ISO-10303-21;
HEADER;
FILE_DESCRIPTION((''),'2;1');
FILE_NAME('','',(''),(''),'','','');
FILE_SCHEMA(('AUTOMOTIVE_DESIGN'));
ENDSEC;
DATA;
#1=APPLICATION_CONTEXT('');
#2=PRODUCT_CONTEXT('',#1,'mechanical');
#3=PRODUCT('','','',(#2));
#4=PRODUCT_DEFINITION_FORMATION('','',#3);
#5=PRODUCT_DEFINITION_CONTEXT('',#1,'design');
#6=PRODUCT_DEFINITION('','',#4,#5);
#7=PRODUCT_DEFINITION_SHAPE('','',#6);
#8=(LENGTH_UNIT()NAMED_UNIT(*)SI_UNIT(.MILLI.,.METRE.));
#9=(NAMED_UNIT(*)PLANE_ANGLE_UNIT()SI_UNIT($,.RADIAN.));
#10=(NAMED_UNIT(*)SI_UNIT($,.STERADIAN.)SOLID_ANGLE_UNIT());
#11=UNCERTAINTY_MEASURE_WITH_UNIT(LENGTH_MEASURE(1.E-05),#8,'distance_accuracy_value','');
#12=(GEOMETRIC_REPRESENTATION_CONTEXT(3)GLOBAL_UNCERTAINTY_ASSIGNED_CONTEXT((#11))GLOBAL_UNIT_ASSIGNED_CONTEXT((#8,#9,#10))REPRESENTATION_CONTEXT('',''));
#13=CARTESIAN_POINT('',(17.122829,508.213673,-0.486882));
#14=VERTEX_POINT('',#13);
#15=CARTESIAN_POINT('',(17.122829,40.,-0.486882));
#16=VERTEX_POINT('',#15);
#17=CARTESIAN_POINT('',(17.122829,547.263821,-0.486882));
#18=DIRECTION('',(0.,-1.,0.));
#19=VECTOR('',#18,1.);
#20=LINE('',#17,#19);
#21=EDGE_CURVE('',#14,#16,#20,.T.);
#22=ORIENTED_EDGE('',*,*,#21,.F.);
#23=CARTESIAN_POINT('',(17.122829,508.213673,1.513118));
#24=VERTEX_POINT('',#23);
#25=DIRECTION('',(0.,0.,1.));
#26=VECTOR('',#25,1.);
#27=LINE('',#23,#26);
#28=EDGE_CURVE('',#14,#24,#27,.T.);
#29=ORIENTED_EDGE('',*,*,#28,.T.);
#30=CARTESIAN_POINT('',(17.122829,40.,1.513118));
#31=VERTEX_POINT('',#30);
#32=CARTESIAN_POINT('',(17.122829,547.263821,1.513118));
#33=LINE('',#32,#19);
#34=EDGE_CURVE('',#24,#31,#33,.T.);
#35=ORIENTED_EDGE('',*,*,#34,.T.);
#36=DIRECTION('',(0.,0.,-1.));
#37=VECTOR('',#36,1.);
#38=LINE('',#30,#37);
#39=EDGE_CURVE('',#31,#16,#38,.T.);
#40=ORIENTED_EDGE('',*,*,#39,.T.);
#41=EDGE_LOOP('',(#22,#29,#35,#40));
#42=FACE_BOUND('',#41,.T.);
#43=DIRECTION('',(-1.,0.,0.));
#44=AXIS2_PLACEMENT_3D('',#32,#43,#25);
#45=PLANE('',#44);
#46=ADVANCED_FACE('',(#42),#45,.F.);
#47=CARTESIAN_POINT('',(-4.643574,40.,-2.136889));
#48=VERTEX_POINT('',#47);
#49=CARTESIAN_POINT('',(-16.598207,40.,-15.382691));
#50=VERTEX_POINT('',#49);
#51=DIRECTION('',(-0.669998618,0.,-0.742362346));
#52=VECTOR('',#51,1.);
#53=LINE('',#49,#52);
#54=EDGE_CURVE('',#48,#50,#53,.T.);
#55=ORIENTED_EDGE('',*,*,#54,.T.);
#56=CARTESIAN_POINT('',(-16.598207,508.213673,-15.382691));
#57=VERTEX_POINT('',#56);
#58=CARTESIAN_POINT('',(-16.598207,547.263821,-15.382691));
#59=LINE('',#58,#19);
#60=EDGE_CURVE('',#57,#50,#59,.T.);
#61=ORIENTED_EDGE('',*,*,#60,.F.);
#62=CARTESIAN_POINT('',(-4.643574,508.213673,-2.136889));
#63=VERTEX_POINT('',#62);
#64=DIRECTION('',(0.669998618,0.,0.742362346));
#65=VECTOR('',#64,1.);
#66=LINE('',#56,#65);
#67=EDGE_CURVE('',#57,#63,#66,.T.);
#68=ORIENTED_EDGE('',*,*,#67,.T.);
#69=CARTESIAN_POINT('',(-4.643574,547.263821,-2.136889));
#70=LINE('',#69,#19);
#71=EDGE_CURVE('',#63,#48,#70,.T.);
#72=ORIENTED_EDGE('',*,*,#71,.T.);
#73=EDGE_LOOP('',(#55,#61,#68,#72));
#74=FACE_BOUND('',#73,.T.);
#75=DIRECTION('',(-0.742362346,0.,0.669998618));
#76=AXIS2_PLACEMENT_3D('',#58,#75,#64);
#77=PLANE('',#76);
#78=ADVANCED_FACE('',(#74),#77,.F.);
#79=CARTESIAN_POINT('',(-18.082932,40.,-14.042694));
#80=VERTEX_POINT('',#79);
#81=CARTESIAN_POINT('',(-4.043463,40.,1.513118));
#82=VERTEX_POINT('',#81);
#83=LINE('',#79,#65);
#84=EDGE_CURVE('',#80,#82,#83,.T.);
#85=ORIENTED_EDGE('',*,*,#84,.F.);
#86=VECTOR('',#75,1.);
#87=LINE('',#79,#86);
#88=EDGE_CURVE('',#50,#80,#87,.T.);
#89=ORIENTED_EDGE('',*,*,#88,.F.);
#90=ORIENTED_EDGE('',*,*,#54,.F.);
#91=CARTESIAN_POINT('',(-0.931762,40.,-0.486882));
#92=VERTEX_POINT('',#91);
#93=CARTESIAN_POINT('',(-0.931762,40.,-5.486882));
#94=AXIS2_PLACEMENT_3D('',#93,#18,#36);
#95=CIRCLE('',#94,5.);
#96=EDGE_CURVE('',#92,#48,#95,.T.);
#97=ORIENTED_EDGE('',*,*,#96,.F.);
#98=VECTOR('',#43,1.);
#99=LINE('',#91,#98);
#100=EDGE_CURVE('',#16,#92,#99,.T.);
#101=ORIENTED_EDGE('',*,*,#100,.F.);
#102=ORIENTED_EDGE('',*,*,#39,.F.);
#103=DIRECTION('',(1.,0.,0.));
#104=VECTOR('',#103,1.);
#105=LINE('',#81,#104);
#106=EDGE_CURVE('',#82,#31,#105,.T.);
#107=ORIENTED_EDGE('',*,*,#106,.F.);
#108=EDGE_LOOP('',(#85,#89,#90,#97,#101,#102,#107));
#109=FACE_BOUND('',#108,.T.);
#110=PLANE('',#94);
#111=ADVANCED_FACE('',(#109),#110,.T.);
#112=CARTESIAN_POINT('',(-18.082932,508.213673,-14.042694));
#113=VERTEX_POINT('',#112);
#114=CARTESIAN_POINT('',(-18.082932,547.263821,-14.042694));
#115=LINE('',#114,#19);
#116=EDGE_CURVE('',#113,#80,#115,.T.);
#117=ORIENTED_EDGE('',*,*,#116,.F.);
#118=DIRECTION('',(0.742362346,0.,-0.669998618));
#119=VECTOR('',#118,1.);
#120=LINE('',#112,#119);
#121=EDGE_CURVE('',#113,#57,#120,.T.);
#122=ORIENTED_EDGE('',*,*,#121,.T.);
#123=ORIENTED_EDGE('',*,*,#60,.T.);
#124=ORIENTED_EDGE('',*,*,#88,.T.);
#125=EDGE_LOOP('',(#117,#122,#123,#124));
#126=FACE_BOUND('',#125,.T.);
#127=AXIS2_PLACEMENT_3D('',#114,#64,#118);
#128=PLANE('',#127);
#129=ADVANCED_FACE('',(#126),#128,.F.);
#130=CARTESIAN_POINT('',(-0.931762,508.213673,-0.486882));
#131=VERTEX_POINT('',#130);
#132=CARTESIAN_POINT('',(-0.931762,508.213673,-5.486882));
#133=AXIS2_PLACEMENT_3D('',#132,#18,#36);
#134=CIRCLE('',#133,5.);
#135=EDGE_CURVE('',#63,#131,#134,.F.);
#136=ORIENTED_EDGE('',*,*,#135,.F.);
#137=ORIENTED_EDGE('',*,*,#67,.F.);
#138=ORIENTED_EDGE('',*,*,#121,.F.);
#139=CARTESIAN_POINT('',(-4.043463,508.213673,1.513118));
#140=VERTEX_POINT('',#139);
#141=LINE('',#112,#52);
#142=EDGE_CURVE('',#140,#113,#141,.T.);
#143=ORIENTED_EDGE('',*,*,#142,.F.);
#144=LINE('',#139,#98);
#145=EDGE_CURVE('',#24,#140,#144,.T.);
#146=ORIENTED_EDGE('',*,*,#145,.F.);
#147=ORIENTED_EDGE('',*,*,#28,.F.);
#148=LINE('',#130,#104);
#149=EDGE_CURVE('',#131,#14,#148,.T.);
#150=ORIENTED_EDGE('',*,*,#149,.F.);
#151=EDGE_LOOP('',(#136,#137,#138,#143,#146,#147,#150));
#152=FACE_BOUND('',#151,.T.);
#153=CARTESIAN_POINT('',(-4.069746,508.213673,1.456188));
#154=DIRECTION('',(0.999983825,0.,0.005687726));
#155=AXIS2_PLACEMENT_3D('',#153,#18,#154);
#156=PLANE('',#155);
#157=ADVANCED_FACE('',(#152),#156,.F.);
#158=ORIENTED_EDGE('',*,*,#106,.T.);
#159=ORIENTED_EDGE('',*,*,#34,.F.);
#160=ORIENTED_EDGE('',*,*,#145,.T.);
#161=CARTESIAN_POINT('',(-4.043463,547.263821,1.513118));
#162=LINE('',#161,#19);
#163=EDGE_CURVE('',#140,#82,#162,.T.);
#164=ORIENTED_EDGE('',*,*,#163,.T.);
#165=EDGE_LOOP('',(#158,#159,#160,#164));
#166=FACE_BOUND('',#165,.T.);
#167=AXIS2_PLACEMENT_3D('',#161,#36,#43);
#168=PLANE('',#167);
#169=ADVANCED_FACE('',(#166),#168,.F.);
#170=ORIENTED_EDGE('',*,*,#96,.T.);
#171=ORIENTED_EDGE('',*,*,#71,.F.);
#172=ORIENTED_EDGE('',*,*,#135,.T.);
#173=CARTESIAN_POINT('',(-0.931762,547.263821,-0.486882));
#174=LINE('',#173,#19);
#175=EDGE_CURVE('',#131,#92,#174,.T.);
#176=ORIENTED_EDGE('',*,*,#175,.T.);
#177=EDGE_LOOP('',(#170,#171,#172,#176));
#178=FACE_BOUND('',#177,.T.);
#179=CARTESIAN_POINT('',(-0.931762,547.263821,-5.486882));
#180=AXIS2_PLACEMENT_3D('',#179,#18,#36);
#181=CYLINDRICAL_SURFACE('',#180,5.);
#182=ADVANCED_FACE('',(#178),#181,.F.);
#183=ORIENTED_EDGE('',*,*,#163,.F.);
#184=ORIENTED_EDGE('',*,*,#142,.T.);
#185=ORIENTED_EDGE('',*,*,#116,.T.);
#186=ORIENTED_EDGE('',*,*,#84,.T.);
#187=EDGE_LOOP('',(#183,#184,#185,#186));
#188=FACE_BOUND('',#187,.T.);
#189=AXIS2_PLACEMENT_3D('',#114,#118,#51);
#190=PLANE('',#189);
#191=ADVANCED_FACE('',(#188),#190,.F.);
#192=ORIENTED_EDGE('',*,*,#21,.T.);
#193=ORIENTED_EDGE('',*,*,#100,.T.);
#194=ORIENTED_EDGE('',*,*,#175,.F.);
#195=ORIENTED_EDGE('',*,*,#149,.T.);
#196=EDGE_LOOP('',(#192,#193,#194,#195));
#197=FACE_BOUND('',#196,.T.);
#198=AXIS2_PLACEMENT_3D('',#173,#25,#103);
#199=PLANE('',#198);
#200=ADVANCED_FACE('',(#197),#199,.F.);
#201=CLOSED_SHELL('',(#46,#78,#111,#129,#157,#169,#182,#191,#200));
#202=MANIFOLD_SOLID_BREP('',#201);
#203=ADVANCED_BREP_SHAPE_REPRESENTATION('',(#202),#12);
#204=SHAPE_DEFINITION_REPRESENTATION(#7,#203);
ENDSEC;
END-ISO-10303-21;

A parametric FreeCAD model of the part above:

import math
import FreeCAD as App
import Part
import Sketcher
from FreeCAD import Vector
Q = App.Units.Quantity

doc = App.newDocument("Part")
body = doc.addObject("PartDesign::Body", "Body")

# Sketch on XZ plane
sketch1 = doc.addObject("Sketcher::SketchObject", "Sketch")
body.addObject(sketch1)
sketch1.AttachmentSupport = (doc.XZ_Plane, [""])
sketch1.MapMode = "FlatFace"
sketch1.AttachmentOffset = App.Placement(Vector(0, 0, -40), App.Rotation())
sketch1.addGeometry([
    Part.LineSegment(Vector(-16.6, -15.4, 0), Vector(-18.1, -14, 0)),  # 0
    Part.LineSegment(Vector(-18.1, -14, 0), Vector(-4, 1.5, 0)),  # 1
    Part.LineSegment(Vector(-4, 1.5, 0), Vector(17.1, 1.5, 0)),  # 2
    Part.LineSegment(Vector(17.1, 1.5, 0), Vector(17.1, -0.5, 0)),  # 3
    Part.LineSegment(Vector(17.1, -0.5, 0), Vector(-0.9, -0.5, 0)),  # 4
    Part.ArcOfCircle(Part.Circle(Vector(-0.9, -5.5, 0), Vector(0, 0, 1), 5), math.radians(90), math.radians(138)),  # 5
    Part.LineSegment(Vector(-4.6, -2.1, 0), Vector(-16.6, -15.4, 0)),  # 6
], False)
sketch1.addConstraint([
    Sketcher.Constraint("Coincident", 0, 2, 1, 1),
    Sketcher.Constraint("Coincident", 1, 2, 2, 1),
    Sketcher.Constraint("Coincident", 2, 2, 3, 1),
    Sketcher.Constraint("Coincident", 3, 2, 4, 1),
    Sketcher.Constraint("Tangent", 4, 2, 5, 1),
    Sketcher.Constraint("Tangent", 5, 2, 6, 1),
    Sketcher.Constraint("Coincident", 6, 2, 0, 1),
    Sketcher.Constraint("Horizontal", 2),
    Sketcher.Constraint("Vertical", 3),
    Sketcher.Constraint("Horizontal", 4),
    Sketcher.Constraint("Perpendicular", 0, 1),
    Sketcher.Constraint("Parallel", 1, 6),
    Sketcher.Constraint("Radius", 5, Q("5 mm")),
    Sketcher.Constraint("DistanceY", 3, 2, 3, 1, Q("2 mm")),
    Sketcher.Constraint("Distance", 0, Q("2 mm")),
    Sketcher.Constraint("DistanceX", 4, 2, 4, 1, Q("18.054592 mm")),
    Sketcher.Constraint("DistanceX", 1, 2, 5, 3, Q("3.111701 mm")),
    Sketcher.Constraint("DistanceY", 5, 3, -1, 1, Q("5.486882 mm")),
    Sketcher.Constraint("DistanceX", -1, 1, 2, 2, Q("17.122829 mm")),
    Sketcher.Constraint("DistanceY", 6, 2, -1, 1, Q("15.382691 mm")),
])
pad1 = doc.addObject("PartDesign::Pad", "Pad")
body.addObject(pad1)
pad1.Profile = sketch1
pad1.Length = 468.213673
pad1.Reversed = True

doc.recompute()
